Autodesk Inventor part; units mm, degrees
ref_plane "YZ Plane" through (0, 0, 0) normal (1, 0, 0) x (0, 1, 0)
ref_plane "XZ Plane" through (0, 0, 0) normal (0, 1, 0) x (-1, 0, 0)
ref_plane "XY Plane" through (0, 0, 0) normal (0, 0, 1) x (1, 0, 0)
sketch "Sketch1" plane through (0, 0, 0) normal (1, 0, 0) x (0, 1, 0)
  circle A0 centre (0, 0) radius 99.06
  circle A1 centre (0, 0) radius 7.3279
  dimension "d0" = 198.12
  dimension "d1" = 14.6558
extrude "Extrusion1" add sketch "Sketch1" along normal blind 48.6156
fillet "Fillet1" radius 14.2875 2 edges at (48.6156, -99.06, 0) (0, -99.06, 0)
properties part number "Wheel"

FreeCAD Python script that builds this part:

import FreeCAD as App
import Part
import Sketcher
from FreeCAD import Vector
Q = App.Units.Quantity


def edges_at(feature, points):
    """Names of the edges that pass closest to the given points."""
    edges = feature.Shape.Edges
    near = lambda p: min(range(len(edges)), key=lambda i: edges[i].distToShape(Part.Vertex(*p))[0])
    return sorted({f"Edge{near(p) + 1}" for p in points})

doc = App.newDocument("Part")
params = doc.addObject("Spreadsheet::Sheet", "Params")
for row, (alias, value) in enumerate([
    ("sketch1_diameter", "7.8 in"),
    ("sketch1_diameter2", "0.577 in"),
    ("pad1_length", "1.914 in"),
    ("fillet_radius", "0.5625 in"),
], start=1):
    params.set(f"A{row}", alias)
    params.set(f"B{row}", "=" + value)
    params.setAlias(f"B{row}", alias)

body = doc.addObject("PartDesign::Body", "Body")

sketch1 = body.newObject("Sketcher::SketchObject", "Sketch")
sketch1.AttachmentSupport = (doc.getObject("YZ_Plane"), [""])
sketch1.MapMode = "FlatFace"
sketch1.addGeometry([
    Part.Circle(Vector(0, 0, 0), Vector(0, 0, 1), 99),
    Part.Circle(Vector(0, 0, 0), Vector(0, 0, 1), 7),
], False)
sketch1.addConstraint([
    Sketcher.Constraint("Coincident", 0, 3, -1, 1),
    Sketcher.Constraint("Coincident", 1, 3, -1, 1),
    Sketcher.Constraint("Diameter", 0, Q("7.8 in")),
    Sketcher.Constraint("Diameter", 1, Q("0.577 in")),
])
sketch1.setExpression("Constraints[2]", "Params.sketch1_diameter")
sketch1.setExpression("Constraints[3]", "Params.sketch1_diameter2")
pad1 = body.newObject("PartDesign::Pad", "Pad")
pad1.Profile = sketch1
pad1.setExpression("Length", "Params.pad1_length")
doc.recompute()

fillet = body.newObject("PartDesign::Fillet", "Fillet")
fillet.Base = (pad1, edges_at(pad1, [(48.616, -99.06, 0), (0, -99.06, 0)]))
fillet.setExpression("Radius", "Params.fillet_radius")

doc.recompute()
